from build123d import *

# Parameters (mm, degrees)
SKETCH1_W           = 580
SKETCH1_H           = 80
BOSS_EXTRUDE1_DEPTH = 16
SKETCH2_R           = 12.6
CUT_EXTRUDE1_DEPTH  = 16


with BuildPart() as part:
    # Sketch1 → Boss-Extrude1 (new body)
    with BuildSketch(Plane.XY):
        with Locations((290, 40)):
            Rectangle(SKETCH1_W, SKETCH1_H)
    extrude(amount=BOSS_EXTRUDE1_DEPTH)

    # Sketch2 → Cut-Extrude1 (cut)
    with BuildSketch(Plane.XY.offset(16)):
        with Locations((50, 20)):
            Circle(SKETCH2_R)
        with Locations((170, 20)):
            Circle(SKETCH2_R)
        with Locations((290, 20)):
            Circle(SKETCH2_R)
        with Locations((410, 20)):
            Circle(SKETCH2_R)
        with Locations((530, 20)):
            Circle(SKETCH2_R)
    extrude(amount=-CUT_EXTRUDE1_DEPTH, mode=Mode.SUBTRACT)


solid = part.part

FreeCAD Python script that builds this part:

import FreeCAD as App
import Part
import Sketcher
from FreeCAD import Vector
Q = App.Units.Quantity

doc = App.newDocument("Part")
body = doc.addObject("PartDesign::Body", "Body")

sketch1 = body.newObject("Sketcher::SketchObject", "Sketch")
sketch1.AttachmentSupport = (doc.getObject("XY_Plane"), [""])
sketch1.MapMode = "FlatFace"
sketch1.addGeometry([
    Part.LineSegment(Vector(0, 80, 0), Vector(0, 0, 0)),
    Part.LineSegment(Vector(0, 0, 0), Vector(580, 0, 0)),
    Part.LineSegment(Vector(580, 0, 0), Vector(580, 80, 0)),
    Part.LineSegment(Vector(580, 80, 0), Vector(0, 80, 0)),
], False)
sketch1.addConstraint([
    Sketcher.Constraint("Coincident", 0, 2, 1, 1),
    Sketcher.Constraint("Coincident", 1, 2, 2, 1),
    Sketcher.Constraint("Coincident", 2, 2, 3, 1),
    Sketcher.Constraint("Coincident", 3, 2, 0, 1),
    Sketcher.Constraint("Vertical", 0),
    Sketcher.Constraint("Horizontal", 1),
    Sketcher.Constraint("Vertical", 2),
    Sketcher.Constraint("Horizontal", 3),
    Sketcher.Constraint("Coincident", 0, 2, -1, 1),
    Sketcher.Constraint("DistanceX", 1, 1, 1, 2, Q("580 mm")),
    Sketcher.Constraint("DistanceY", 0, 2, 0, 1, Q("80 mm")),
])
pad1 = body.newObject("PartDesign::Pad", "Pad")
pad1.Profile = sketch1
pad1.Length = 16

sketch2 = body.newObject("Sketcher::SketchObject", "Sketch001")
sketch2.AttachmentSupport = (doc.getObject("XY_Plane"), [""])
sketch2.MapMode = "FlatFace"
sketch2.AttachmentOffset = App.Placement(Vector(0, 0, 16), App.Rotation())
sketch2.addGeometry([
    Part.Circle(Vector(50, 20, 0), Vector(0, 0, 1), 13),
    Part.Circle(Vector(170, 20, 0), Vector(0, 0, 1), 13),
    Part.Circle(Vector(290, 20, 0), Vector(0, 0, 1), 13),
    Part.Circle(Vector(410, 20, 0), Vector(0, 0, 1), 13),
    Part.Circle(Vector(530, 20, 0), Vector(0, 0, 1), 13),
], False)
sketch2.addConstraint([
    Sketcher.Constraint("Equal", 0, 1),
    Sketcher.Constraint("Equal", 1, 2),
    Sketcher.Constraint("Equal", 2, 3),
    Sketcher.Constraint("Equal", 3, 4),
    Sketcher.Constraint("Horizontal", 0, 3, 1, 3),
    Sketcher.Constraint("Horizontal", 1, 3, 2, 3),
    Sketcher.Constraint("Horizontal", 2, 3, 3, 3),
    Sketcher.Constraint("Horizontal", 3, 3, 4, 3),
    Sketcher.Constraint("Diameter", 0, Q("25.2 mm")),
    Sketcher.Constraint("DistanceX", -1, 1, 0, 3, Q("50 mm")),
    Sketcher.Constraint("DistanceY", -1, 1, 0, 3, Q("20 mm")),
    Sketcher.Constraint("DistanceX", -1, 1, 1, 3, Q("170 mm")),
    Sketcher.Constraint("DistanceX", -1, 1, 2, 3, Q("290 mm")),
    Sketcher.Constraint("DistanceX", -1, 1, 3, 3, Q("410 mm")),
    Sketcher.Constraint("DistanceX", -1, 1, 4, 3, Q("530 mm")),
])
pocket1 = body.newObject("PartDesign::Pocket", "Pocket")
pocket1.Profile = sketch2
pocket1.Length = 16

doc.recompute()
